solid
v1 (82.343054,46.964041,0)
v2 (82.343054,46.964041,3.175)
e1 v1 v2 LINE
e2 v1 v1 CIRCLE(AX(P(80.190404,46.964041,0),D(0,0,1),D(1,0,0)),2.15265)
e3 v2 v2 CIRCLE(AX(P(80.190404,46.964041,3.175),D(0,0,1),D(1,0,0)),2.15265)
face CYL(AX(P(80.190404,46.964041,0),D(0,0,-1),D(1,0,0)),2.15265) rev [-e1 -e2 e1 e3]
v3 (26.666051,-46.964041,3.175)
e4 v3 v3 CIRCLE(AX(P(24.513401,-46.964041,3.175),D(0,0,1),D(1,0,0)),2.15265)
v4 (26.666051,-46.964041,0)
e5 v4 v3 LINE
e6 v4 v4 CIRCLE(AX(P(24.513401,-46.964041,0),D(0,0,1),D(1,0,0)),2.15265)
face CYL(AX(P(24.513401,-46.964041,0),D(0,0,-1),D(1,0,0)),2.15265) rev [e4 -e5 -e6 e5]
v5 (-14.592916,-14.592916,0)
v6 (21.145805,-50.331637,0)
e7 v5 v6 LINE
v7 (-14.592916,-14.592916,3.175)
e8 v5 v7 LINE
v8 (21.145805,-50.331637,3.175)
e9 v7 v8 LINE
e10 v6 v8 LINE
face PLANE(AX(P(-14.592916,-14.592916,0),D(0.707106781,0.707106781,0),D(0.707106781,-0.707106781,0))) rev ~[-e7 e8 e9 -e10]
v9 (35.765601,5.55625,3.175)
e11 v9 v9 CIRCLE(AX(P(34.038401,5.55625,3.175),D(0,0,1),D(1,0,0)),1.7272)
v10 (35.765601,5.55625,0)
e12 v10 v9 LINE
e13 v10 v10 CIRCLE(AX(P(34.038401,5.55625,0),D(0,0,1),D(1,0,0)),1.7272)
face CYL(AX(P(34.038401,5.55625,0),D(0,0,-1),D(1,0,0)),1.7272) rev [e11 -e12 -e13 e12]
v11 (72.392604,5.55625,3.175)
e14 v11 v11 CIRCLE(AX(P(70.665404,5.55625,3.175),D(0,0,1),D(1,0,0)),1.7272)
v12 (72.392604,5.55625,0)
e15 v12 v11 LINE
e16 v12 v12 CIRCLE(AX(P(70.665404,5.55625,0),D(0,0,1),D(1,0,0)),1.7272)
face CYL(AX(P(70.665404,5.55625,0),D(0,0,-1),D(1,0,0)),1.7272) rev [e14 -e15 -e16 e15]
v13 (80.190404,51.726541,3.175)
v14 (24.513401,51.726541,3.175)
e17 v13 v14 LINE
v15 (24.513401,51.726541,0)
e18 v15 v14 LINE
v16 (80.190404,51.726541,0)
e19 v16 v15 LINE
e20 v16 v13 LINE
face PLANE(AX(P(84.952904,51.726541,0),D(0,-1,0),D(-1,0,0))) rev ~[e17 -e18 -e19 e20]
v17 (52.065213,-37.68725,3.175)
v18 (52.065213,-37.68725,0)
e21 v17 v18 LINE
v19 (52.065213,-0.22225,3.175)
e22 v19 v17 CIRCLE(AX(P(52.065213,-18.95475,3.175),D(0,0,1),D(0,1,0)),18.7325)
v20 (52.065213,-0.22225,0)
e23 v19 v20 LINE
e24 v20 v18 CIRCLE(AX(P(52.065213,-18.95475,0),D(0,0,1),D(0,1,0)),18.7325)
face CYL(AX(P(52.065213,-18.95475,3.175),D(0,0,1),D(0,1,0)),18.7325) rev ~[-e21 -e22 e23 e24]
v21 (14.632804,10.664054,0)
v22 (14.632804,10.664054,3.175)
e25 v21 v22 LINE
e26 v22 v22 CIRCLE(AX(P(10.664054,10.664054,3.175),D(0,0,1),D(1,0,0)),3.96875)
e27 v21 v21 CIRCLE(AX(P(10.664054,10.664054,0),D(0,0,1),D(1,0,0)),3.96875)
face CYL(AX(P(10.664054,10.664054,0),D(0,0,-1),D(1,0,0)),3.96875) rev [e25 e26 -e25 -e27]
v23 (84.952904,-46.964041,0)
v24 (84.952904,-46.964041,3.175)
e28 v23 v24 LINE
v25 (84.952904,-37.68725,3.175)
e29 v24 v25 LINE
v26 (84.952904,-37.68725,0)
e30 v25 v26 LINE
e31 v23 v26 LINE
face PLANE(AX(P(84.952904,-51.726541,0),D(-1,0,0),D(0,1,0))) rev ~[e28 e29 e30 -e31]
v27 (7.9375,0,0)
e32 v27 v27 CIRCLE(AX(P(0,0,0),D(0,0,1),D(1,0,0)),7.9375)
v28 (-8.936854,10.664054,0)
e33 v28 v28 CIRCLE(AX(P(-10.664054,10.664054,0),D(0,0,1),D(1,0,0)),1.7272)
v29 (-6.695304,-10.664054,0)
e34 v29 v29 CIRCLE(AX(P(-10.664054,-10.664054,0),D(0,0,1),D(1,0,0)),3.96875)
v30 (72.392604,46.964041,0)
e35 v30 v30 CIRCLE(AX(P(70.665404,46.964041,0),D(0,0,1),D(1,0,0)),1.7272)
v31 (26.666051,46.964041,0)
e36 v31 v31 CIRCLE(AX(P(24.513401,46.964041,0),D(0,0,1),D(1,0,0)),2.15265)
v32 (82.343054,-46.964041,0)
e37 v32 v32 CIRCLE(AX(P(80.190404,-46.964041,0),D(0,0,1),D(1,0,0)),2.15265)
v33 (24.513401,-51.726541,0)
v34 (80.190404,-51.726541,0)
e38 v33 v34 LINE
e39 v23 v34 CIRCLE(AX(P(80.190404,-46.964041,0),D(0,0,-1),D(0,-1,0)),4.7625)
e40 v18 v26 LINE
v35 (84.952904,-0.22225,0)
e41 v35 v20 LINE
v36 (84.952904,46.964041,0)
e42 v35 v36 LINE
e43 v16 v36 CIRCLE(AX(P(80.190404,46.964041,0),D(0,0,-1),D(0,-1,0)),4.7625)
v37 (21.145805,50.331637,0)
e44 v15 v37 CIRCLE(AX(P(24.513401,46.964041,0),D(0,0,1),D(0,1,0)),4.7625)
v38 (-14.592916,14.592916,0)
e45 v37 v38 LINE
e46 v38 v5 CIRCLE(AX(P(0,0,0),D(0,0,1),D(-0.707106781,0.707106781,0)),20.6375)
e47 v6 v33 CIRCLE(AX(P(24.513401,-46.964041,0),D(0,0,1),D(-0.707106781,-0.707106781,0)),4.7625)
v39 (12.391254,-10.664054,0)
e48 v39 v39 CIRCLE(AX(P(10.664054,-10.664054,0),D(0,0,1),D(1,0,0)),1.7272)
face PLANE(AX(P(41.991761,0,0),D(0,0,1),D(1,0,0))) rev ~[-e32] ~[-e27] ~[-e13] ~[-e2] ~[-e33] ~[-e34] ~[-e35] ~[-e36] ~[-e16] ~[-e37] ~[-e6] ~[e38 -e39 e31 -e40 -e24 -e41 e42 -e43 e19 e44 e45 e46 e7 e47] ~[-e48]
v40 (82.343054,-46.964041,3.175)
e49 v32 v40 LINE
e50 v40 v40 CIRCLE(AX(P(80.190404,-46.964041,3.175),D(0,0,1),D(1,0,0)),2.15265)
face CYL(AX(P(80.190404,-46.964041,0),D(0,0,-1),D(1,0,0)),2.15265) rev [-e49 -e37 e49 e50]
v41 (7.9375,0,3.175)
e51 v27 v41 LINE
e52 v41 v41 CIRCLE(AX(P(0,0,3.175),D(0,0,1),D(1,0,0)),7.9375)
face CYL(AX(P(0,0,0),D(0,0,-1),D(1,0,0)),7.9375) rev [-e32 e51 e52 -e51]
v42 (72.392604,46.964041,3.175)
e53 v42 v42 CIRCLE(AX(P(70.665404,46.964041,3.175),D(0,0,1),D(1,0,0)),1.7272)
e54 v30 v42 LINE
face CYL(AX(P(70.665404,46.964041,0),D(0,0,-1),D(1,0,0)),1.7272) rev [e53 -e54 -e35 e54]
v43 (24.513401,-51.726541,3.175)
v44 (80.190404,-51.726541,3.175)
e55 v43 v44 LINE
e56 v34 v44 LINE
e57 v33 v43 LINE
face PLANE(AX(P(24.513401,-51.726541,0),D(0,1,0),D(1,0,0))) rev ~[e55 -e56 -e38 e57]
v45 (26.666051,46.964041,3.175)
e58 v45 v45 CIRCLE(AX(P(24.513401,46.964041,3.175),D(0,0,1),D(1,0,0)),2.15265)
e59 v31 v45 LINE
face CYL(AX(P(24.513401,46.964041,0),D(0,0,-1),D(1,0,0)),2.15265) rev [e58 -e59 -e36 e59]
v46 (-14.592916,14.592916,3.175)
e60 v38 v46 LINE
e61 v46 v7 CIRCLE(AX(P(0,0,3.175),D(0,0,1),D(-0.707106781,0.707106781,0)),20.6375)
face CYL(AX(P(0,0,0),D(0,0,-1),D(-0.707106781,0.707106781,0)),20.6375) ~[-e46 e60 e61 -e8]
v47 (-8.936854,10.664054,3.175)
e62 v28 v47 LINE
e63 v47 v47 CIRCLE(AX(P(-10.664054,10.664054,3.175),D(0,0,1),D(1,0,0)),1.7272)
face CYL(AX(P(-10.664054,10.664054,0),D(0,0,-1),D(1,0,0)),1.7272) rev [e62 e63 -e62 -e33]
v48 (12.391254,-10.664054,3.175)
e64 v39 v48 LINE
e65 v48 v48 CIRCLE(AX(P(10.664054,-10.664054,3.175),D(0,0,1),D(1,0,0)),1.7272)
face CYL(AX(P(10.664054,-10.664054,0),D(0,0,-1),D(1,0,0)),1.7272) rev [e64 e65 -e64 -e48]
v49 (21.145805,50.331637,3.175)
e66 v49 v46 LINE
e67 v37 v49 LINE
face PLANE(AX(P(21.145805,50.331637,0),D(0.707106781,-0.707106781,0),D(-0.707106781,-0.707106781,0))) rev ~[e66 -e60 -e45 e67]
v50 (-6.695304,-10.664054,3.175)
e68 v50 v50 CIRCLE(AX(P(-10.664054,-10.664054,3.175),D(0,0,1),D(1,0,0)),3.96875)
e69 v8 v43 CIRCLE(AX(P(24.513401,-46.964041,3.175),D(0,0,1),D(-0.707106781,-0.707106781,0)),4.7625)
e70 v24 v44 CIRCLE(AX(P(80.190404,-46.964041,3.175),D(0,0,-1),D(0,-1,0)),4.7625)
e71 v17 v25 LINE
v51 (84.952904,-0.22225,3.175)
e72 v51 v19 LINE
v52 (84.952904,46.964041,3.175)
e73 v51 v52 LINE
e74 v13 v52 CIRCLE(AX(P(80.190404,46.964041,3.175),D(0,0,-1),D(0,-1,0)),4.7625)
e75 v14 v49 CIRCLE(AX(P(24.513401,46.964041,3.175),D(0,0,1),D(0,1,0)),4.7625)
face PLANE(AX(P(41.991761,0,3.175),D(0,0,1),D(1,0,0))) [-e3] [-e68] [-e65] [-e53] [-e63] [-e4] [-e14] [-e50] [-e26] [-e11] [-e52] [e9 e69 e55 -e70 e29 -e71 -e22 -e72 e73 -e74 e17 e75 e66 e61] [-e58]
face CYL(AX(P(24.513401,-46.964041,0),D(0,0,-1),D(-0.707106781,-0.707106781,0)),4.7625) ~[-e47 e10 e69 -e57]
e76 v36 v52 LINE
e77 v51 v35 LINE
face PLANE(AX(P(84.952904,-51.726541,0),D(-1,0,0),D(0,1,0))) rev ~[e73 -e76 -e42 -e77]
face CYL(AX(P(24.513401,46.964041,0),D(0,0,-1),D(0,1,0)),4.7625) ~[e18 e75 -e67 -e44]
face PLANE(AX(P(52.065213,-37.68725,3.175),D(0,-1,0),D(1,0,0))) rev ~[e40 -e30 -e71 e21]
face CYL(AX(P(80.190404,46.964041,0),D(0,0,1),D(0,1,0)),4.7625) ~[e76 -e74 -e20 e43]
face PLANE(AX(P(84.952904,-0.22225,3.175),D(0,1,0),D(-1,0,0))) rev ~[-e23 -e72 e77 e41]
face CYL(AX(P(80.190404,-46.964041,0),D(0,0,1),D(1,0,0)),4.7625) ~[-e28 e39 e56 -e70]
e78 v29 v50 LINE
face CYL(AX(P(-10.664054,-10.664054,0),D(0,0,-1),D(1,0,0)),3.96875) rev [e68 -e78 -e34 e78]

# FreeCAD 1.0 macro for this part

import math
import FreeCAD as App
import Part
import Sketcher
Q = App.Units.Quantity


def edges_at(feature, points):
    """Names of the edges that pass closest to the given points."""
    edges = feature.Shape.Edges
    near = lambda p: min(range(len(edges)), key=lambda i: edges[i].distToShape(Part.Vertex(*p))[0])
    return sorted({f"Edge{near(p) + 1}" for p in points})

doc = App.newDocument("Part")
body = doc.addObject("PartDesign::Body", "Body")

# Sketch on XY plane
sketch1 = body.newObject("Sketcher::SketchObject", "Sketch")
sketch1.AttachmentSupport = (doc.getObject("XY_Plane"), [""])
sketch1.MapMode = "FlatFace"
sketch1.addGeometry([
    Part.LineSegment(App.Vector(21.145805, 50.331637, 0), App.Vector(-14.592916, 14.592916, 0)),  # 0
    Part.ArcOfCircle(Part.Circle(App.Vector(0, 0, 0), App.Vector(0, 0, 1), 20.6375), math.radians(135), math.radians(225)),  # 1
    Part.LineSegment(App.Vector(-14.592916, -14.592916, 0), App.Vector(21.145805, -50.331637, 0)),  # 2
    Part.ArcOfCircle(Part.Circle(App.Vector(24.513401, -46.964041, 0), App.Vector(0, 0, 1), 4.7625), math.radians(-135), math.radians(-90)),  # 3
    Part.LineSegment(App.Vector(24.513401, -51.726541, 0), App.Vector(84.952904, -51.726541, 0)),  # 4
    Part.LineSegment(App.Vector(84.952904, -51.726541, 0), App.Vector(84.952904, 51.726541, 0)),  # 5
    Part.LineSegment(App.Vector(84.952904, 51.726541, 0), App.Vector(24.513401, 51.726541, 0)),  # 6
    Part.ArcOfCircle(Part.Circle(App.Vector(24.513401, 46.964041, 0), App.Vector(0, 0, 1), 4.7625), math.radians(90), math.radians(135)),  # 7
    Part.Circle(App.Vector(24.513401, -46.964041, 0), App.Vector(0, 0, 1), 2.15265),  # 8
    Part.Circle(App.Vector(-10.664054, -10.664054, 0), App.Vector(0, 0, 1), 3.96875),  # 9
    Part.Circle(App.Vector(0, 0, 0), App.Vector(0, 0, 1), 7.9375),  # 10
    Part.Circle(App.Vector(10.664054, -10.664054, 0), App.Vector(0, 0, 1), 1.7272),  # 11
    Part.Circle(App.Vector(80.190404, -46.964041, 0), App.Vector(0, 0, 1), 2.15265),  # 12
    Part.Circle(App.Vector(-10.664054, 10.664054, 0), App.Vector(0, 0, 1), 1.7272),  # 13
    Part.Circle(App.Vector(10.664054, 10.664054, 0), App.Vector(0, 0, 1), 3.96875),  # 14
    Part.Circle(App.Vector(24.513401, 46.964041, 0), App.Vector(0, 0, 1), 2.15265),  # 15
    Part.Circle(App.Vector(34.038401, 5.55625, 0), App.Vector(0, 0, 1), 1.7272),  # 16
    Part.Circle(App.Vector(70.665404, 5.55625, 0), App.Vector(0, 0, 1), 1.7272),  # 17
    Part.Circle(App.Vector(70.665404, 46.964041, 0), App.Vector(0, 0, 1), 1.7272),  # 18
    Part.Circle(App.Vector(80.190404, 46.964041, 0), App.Vector(0, 0, 1), 2.15265),  # 19
], False)
sketch1.addConstraint([
    Sketcher.Constraint("Tangent", 0, 2, 1, 1),
    Sketcher.Constraint("Tangent", 1, 2, 2, 1),
    Sketcher.Constraint("Tangent", 2, 2, 3, 1),
    Sketcher.Constraint("Tangent", 3, 2, 4, 1),
    Sketcher.Constraint("Coincident", 4, 2, 5, 1),
    Sketcher.Constraint("Coincident", 5, 2, 6, 1),
    Sketcher.Constraint("Tangent", 6, 2, 7, 1),
    Sketcher.Constraint("Tangent", 7, 2, 0, 1),
    Sketcher.Constraint("Horizontal", 4),
    Sketcher.Constraint("Vertical", 5),
    Sketcher.Constraint("Horizontal", 6),
    Sketcher.Constraint("Coincident", 1, 3, -1, 1),
    Sketcher.Constraint("Coincident", 10, 3, -1, 1),
    Sketcher.Constraint("Coincident", 8, 3, 3, 3),
    Sketcher.Constraint("Coincident", 15, 3, 7, 3),
    Sketcher.Constraint("Equal", 3, 7),
    Sketcher.Constraint("Equal", 8, 12),
    Sketcher.Constraint("Equal", 11, 13),
    Sketcher.Constraint("Equal", 9, 14),
    Sketcher.Constraint("Equal", 12, 15),
    Sketcher.Constraint("Equal", 13, 16),
    Sketcher.Constraint("Equal", 16, 17),
    Sketcher.Constraint("Equal", 17, 18),
    Sketcher.Constraint("Equal", 15, 19),
    Sketcher.Constraint("Symmetric", 11, 3, 13, 3, -1, 1),
    Sketcher.Constraint("Symmetric", 9, 3, 14, 3, -1, 1),
    Sketcher.Constraint("Symmetric", 9, 3, 11, 3, -2),
    Sketcher.Constraint("Symmetric", 3, 3, 7, 3, -1),
    Sketcher.Constraint("Symmetric", 12, 3, 19, 3, -1),
    Sketcher.Constraint("Perpendicular", 0, 2),
    Sketcher.Constraint("Horizontal", 8, 3, 12, 3),
    Sketcher.Constraint("Horizontal", 16, 3, 17, 3),
    Sketcher.Constraint("Horizontal", 15, 3, 18, 3),
    Sketcher.Constraint("Vertical", 17, 3, 18, 3),
    Sketcher.Constraint("Diameter", 9, Q("0.3125 in")),
    Sketcher.Constraint("Diameter", 10, Q("0.625 in")),
    Sketcher.Constraint("Diameter", 11, Q("0.136 in")),
    Sketcher.Constraint("Radius", 1, Q("0.8125 in")),
    Sketcher.Constraint("Radius", 3, Q("0.1875 in")),
    Sketcher.Constraint("Diameter", 8, Q("0.1695 in")),
    Sketcher.Constraint("DistanceY", -1, 1, 16, 3, Q("0.21875 in")),
    Sketcher.Constraint("DistanceX", 7, 3, 16, 3, Q("0.375 in")),
    Sketcher.Constraint("DistanceX", 17, 3, 12, 3, Q("0.375 in")),
    Sketcher.Constraint("DistanceX", 12, 3, 4, 2, Q("0.1875 in")),
    Sketcher.Constraint("DistanceX", -1, 1, 3, 3, Q("24.513401 mm")),
    Sketcher.Constraint("DistanceX", 4, 1, 4, 2, Q("60.439503 mm")),
    Sketcher.Constraint("DistanceX", 9, 3, 11, 3, Q("21.328108 mm")),
    Sketcher.Constraint("DistanceY", 9, 3, 13, 3, Q("21.328108 mm")),
])
pad1 = body.newObject("PartDesign::Pad", "Pad")
pad1.Profile = sketch1
pad1.Length = Q("0.125 in")
doc.recompute()

fillet = body.newObject("PartDesign::Fillet", "Fillet")
fillet.Base = (pad1, edges_at(pad1, [(84.953, 51.727, 1.587), (84.953, -51.727, 1.587)]))
fillet.Radius = Q("0.1875 in")

# Sketch on XY plane
sketch2 = body.newObject("Sketcher::SketchObject", "Sketch001")
sketch2.AttachmentSupport = (doc.getObject("XY_Plane"), [""])
sketch2.MapMode = "FlatFace"
sketch2.AttachmentOffset = App.Placement(App.Vector(0, 0, 0.125 * 25.4), App.Rotation())
sketch2.addGeometry([
    Part.LineSegment(App.Vector(52.065213, -37.68725, 0), App.Vector(84.952904, -37.68725, 0)),
    Part.LineSegment(App.Vector(84.952904, -37.68725, 0), App.Vector(84.952904, -0.22225, 0)),
    Part.LineSegment(App.Vector(84.952904, -0.22225, 0), App.Vector(52.065213, -0.22225, 0)),
    Part.ArcOfCircle(Part.Circle(App.Vector(52.065213, -18.95475, 0), App.Vector(0, 0, 1), 18.7325), math.radians(90), math.radians(270)),
], False)
sketch2.addConstraint([
    Sketcher.Constraint("Coincident", 0, 2, 1, 1),
    Sketcher.Constraint("Coincident", 1, 2, 2, 1),
    Sketcher.Constraint("Tangent", 2, 2, 3, 1),
    Sketcher.Constraint("Tangent", 3, 2, 0, 1),
    Sketcher.Constraint("Horizontal", 0),
    Sketcher.Constraint("Vertical", 1),
    Sketcher.Constraint("Horizontal", 2),
    Sketcher.Constraint("Radius", 3, Q("0.7375 in")),
    Sketcher.Constraint("DistanceX", 0, 1, 0, 2, Q("32.887691 mm")),
    Sketcher.Constraint("DistanceY", 3, 3, -1, 1, Q("18.95475 mm")),
    Sketcher.Constraint("DistanceX", -1, 1, 3, 3, Q("52.065213 mm")),
])
pocket1 = body.newObject("PartDesign::Pocket", "Pocket")
pocket1.Profile = sketch2
pocket1.Type = "ThroughAll"

doc.recompute()
